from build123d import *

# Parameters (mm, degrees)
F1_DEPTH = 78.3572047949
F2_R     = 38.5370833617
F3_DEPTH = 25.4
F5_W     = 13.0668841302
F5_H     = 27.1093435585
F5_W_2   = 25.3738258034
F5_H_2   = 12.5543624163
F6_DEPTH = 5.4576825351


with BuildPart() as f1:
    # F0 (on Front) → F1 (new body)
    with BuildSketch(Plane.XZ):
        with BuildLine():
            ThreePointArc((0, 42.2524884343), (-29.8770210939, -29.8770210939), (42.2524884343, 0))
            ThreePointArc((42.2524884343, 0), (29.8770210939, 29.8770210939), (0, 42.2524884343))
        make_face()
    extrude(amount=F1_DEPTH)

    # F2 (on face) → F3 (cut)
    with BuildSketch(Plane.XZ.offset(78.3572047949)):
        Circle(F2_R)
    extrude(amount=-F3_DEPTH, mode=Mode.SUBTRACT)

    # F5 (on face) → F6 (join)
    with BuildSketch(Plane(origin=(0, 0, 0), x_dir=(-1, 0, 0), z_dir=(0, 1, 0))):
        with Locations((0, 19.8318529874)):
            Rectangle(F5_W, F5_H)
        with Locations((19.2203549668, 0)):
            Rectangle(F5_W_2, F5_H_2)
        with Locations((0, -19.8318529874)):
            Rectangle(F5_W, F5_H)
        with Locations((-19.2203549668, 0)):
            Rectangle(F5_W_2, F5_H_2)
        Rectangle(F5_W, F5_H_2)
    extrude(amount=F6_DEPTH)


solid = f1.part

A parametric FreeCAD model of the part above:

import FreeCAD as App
import Part
import Sketcher

V = App.Vector
Q = App.Units.Quantity


def add_polygon(sketch, points):
    """Adds a closed chain of lines whose ends are joined by coincident constraints."""
    first, n = sketch.GeometryCount, len(points)
    for a, b in zip(points, points[1:] + points[:1]):
        sketch.addGeometry(Part.LineSegment(App.Vector(*a, 0), App.Vector(*b, 0)), False)
    for i in range(n):
        sketch.addConstraint(Sketcher.Constraint("Coincident", first + i, 2, first + (i + 1) % n, 1))

doc = App.newDocument("Part")
body = doc.addObject("PartDesign::Body", "Body")

# Sketch on XZ plane
sketch1 = body.newObject("Sketcher::SketchObject", "Sketch")
sketch1.AttachmentSupport = (doc.getObject("XZ_Plane"), [""])
sketch1.MapMode = "FlatFace"
sketch1.addGeometry(Part.Circle(V(0, 0, 0), V(0, 0, 1), 42), False)
sketch1.addConstraint([
    Sketcher.Constraint("Coincident", 0, 3, -1, 1),
    Sketcher.Constraint("Diameter", 0, 84.504977),
])
pad1 = body.newObject("PartDesign::Pad", "Pad")
pad1.Profile = sketch1
pad1.Length = 78.357205

# Sketch on XZ plane
sketch2 = body.newObject("Sketcher::SketchObject", "Sketch001")
sketch2.AttachmentSupport = (doc.getObject("XZ_Plane"), [""])
sketch2.MapMode = "FlatFace"
sketch2.AttachmentOffset = App.Placement(V(0, 0, 78.357205), App.Rotation())
sketch2.addGeometry(Part.Circle(V(0, 0, 0), V(0, 0, 1), 39), False)
sketch2.addConstraint([
    Sketcher.Constraint("Coincident", 0, 3, -1, 1),
    Sketcher.Constraint("Diameter", 0, 77.074167),
])
pocket1 = body.newObject("PartDesign::Pocket", "Pocket")
pocket1.Profile = sketch2
pocket1.Length = Q("1 in")

# Sketch on XZ plane
sketch3 = body.newObject("Sketcher::SketchObject", "Sketch002")
sketch3.AttachmentSupport = (doc.getObject("XZ_Plane"), [""])
sketch3.MapMode = "FlatFace"
add_polygon(sketch3, [(7, 33), (7, 6), (32, 6), (32, -6), (7, -6), (7, -33), (-7, -33), (-7, -6), (-32, -6), (-32, 6), (-7, 6), (-7, 33)])  # lines 0-11
sketch3.addConstraint([
    Sketcher.Constraint("Vertical", 0),
    Sketcher.Constraint("Horizontal", 1),
    Sketcher.Constraint("Vertical", 2),
    Sketcher.Constraint("Horizontal", 3),
    Sketcher.Constraint("Vertical", 4),
    Sketcher.Constraint("Horizontal", 5),
    Sketcher.Constraint("Vertical", 6),
    Sketcher.Constraint("Horizontal", 7),
    Sketcher.Constraint("Vertical", 8),
    Sketcher.Constraint("Horizontal", 9),
    Sketcher.Constraint("Vertical", 10),
    Sketcher.Constraint("Horizontal", 11),
    Sketcher.Constraint("Symmetric", 0, 2, 6, 2, -1, 1),
    Sketcher.Constraint("Symmetric", 2, 2, 8, 2, -1, 1),
    Sketcher.Constraint("Symmetric", 4, 2, 10, 2, -1, 1),
    Sketcher.Constraint("Symmetric", 3, 2, 6, 2, -2),
    Sketcher.Constraint("DistanceX", 1, 1, 1, 2, 25.373826),
    Sketcher.Constraint("DistanceX", 5, 2, 5, 1, 13.066884),
    Sketcher.Constraint("DistanceY", 0, 2, 0, 1, 27.109344),
    Sketcher.Constraint("DistanceY", 2, 2, 2, 1, 12.554362),
])
pad2 = body.newObject("PartDesign::Pad", "Pad001")
pad2.Profile = sketch3
pad2.Length = 5.457683
pad2.Reversed = True

doc.recompute()
